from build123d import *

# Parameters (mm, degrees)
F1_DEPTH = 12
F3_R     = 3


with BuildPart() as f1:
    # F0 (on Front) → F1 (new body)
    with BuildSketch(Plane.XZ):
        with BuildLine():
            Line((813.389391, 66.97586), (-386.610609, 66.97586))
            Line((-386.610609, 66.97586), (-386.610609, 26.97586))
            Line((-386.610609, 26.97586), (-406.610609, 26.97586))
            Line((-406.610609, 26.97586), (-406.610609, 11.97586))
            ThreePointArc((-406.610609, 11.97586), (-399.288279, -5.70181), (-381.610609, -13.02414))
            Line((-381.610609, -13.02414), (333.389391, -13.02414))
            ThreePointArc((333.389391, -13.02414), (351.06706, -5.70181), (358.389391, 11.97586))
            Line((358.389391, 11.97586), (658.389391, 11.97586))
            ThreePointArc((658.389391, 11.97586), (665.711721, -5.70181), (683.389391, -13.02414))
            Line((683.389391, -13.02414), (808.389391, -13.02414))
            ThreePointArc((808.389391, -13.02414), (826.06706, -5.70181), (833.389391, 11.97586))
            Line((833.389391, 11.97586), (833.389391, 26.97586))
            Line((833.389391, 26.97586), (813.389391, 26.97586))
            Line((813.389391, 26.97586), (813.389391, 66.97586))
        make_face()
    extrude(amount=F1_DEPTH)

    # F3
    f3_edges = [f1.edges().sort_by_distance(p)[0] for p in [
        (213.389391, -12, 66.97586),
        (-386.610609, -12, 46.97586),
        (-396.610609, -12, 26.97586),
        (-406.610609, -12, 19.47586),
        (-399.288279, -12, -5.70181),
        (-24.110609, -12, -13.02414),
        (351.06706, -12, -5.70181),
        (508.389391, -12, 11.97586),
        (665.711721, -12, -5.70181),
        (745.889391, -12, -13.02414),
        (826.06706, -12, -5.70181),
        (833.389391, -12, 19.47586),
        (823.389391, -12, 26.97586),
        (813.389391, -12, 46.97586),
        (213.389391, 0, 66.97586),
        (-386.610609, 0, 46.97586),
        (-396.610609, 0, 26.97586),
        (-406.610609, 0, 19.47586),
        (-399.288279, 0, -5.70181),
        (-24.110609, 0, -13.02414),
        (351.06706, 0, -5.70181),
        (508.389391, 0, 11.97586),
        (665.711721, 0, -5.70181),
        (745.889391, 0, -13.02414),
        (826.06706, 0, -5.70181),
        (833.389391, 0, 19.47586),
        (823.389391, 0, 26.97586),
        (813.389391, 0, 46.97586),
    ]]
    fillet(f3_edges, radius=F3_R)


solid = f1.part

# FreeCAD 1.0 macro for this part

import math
import FreeCAD as App
import Part
import Sketcher

V = App.Vector


def edges_at(feature, points):
    """Names of the edges that pass closest to the given points."""
    edges = feature.Shape.Edges
    near = lambda p: min(range(len(edges)), key=lambda i: edges[i].distToShape(Part.Vertex(*p))[0])
    return sorted({f"Edge{near(p) + 1}" for p in points})

doc = App.newDocument("Part")
params = doc.addObject("Spreadsheet::Sheet", "Params")
for row, (alias, value) in enumerate([
    ("sketch1_radius", "24.999998 mm"),
    ("sketch1_width", "1200 mm"),
    ("sketch1_width2", "20 mm"),
    ("sketch1_width3", "715 mm"),
    ("sketch1_width4", "300 mm"),
    ("pad1_length", "12 mm"),
    ("fillet_radius", "3 mm"),
], start=1):
    params.set(f"A{row}", alias)
    params.set(f"B{row}", "=" + value)
    params.setAlias(f"B{row}", alias)

body = doc.addObject("PartDesign::Body", "Body")

# Sketch on XZ plane
sketch1 = body.newObject("Sketcher::SketchObject", "Sketch")
sketch1.AttachmentSupport = (doc.getObject("XZ_Plane"), [""])
sketch1.MapMode = "FlatFace"
sketch1.addGeometry(Part.LineSegment(V(813, 67, 0), V(-387, 67, 0)), False)
sketch1.addGeometry(Part.LineSegment(V(-387, 67, 0), V(-387, 27, 0)), False)
sketch1.addGeometry(Part.LineSegment(V(-387, 27, 0), V(-407, 27, 0)), False)
sketch1.addGeometry(Part.LineSegment(V(-407, 27, 0), V(-407, 12, 0)), False)
sketch1.addGeometry(Part.ArcOfCircle(Part.Circle(V(-382, 12, 0), V(0, 0, 1), 25), math.radians(180), math.radians(270)), False)
sketch1.addGeometry(Part.LineSegment(V(-382, -13, 0), V(333, -13, 0)), False)
sketch1.addGeometry(Part.ArcOfCircle(Part.Circle(V(333, 12, 0), V(0, 0, 1), 25), math.radians(-90), math.radians(0)), False)
sketch1.addGeometry(Part.LineSegment(V(358, 12, 0), V(658, 12, 0)), False)
sketch1.addGeometry(Part.ArcOfCircle(Part.Circle(V(683, 12, 0), V(0, 0, 1), 25), math.radians(180), math.radians(270)), False)
sketch1.addGeometry(Part.LineSegment(V(683, -13, 0), V(808, -13, 0)), False)
sketch1.addGeometry(Part.ArcOfCircle(Part.Circle(V(808, 12, 0), V(0, 0, 1), 25), math.radians(-90), math.radians(0)), False)
sketch1.addGeometry(Part.LineSegment(V(833, 12, 0), V(833, 27, 0)), False)
sketch1.addGeometry(Part.LineSegment(V(833, 27, 0), V(813, 27, 0)), False)
sketch1.addGeometry(Part.LineSegment(V(813, 27, 0), V(813, 67, 0)), False)
sketch1.addConstraint(Sketcher.Constraint("Coincident", 0, 2, 1, 1))
sketch1.addConstraint(Sketcher.Constraint("Coincident", 1, 2, 2, 1))
sketch1.addConstraint(Sketcher.Constraint("Coincident", 2, 2, 3, 1))
sketch1.addConstraint(Sketcher.Constraint("Tangent", 3, 2, 4, 1))
sketch1.addConstraint(Sketcher.Constraint("Tangent", 4, 2, 5, 1))
sketch1.addConstraint(Sketcher.Constraint("Tangent", 5, 2, 6, 1))
sketch1.addConstraint(Sketcher.Constraint("Coincident", 6, 2, 7, 1))
sketch1.addConstraint(Sketcher.Constraint("Coincident", 7, 2, 8, 1))
sketch1.addConstraint(Sketcher.Constraint("Tangent", 8, 2, 9, 1))
sketch1.addConstraint(Sketcher.Constraint("Tangent", 9, 2, 10, 1))
sketch1.addConstraint(Sketcher.Constraint("Tangent", 10, 2, 11, 1))
sketch1.addConstraint(Sketcher.Constraint("Coincident", 11, 2, 12, 1))
sketch1.addConstraint(Sketcher.Constraint("Coincident", 12, 2, 13, 1))
sketch1.addConstraint(Sketcher.Constraint("Coincident", 13, 2, 0, 1))
sketch1.addConstraint(Sketcher.Constraint("Horizontal", 0))
sketch1.addConstraint(Sketcher.Constraint("Vertical", 1))
sketch1.addConstraint(Sketcher.Constraint("Horizontal", 2))
sketch1.addConstraint(Sketcher.Constraint("Vertical", 3))
sketch1.addConstraint(Sketcher.Constraint("Horizontal", 5))
sketch1.addConstraint(Sketcher.Constraint("Horizontal", 7))
sketch1.addConstraint(Sketcher.Constraint("Horizontal", 9))
sketch1.addConstraint(Sketcher.Constraint("Vertical", 11))
sketch1.addConstraint(Sketcher.Constraint("Horizontal", 12))
sketch1.addConstraint(Sketcher.Constraint("Vertical", 13))
sketch1.addConstraint(Sketcher.Constraint("Equal", 4, 6))
sketch1.addConstraint(Sketcher.Constraint("Equal", 6, 8))
sketch1.addConstraint(Sketcher.Constraint("Equal", 8, 10))
sketch1.addConstraint(Sketcher.Constraint("Horizontal", 6, 3, 8, 3))
sketch1.addConstraint(Sketcher.Constraint("Horizontal", 3, 2, 6, 2))
sketch1.addConstraint(Sketcher.Constraint("Horizontal", 2, 2, 11, 2))
sketch1.addConstraint(Sketcher.Constraint("Equal", 2, 12))
sketch1.addConstraint(Sketcher.Constraint("Radius", 4, 24.999998))
sketch1.addConstraint(Sketcher.Constraint("DistanceX", 0, 2, 0, 1, 1200.0))
sketch1.addConstraint(Sketcher.Constraint("DistanceX", 2, 2, 2, 1, 20.0))
sketch1.addConstraint(Sketcher.Constraint("DistanceX", 5, 1, 5, 2, 715.0))
sketch1.addConstraint(Sketcher.Constraint("DistanceX", 7, 1, 7, 2, 300.0))
sketch1.addConstraint(Sketcher.Constraint("DistanceY", 1, 2, 1, 1, 40.0))
sketch1.addConstraint(Sketcher.Constraint("DistanceY", 3, 2, 3, 1, 15.0))
sketch1.addConstraint(Sketcher.Constraint("DistanceX", 4, 3, -1, 1, 381.610611))
sketch1.addConstraint(Sketcher.Constraint("DistanceY", -1, 1, 4, 3, 11.975858))
sketch1.setExpression("Constraints[31]", "Params.sketch1_radius")
sketch1.setExpression("Constraints[32]", "Params.sketch1_width")
sketch1.setExpression("Constraints[33]", "Params.sketch1_width2")
sketch1.setExpression("Constraints[34]", "Params.sketch1_width3")
sketch1.setExpression("Constraints[35]", "Params.sketch1_width4")
pad1 = body.newObject("PartDesign::Pad", "Pad")
pad1.Profile = sketch1
pad1.setExpression("Length", "Params.pad1_length")
doc.recompute()

fillet = body.newObject("PartDesign::Fillet", "Fillet")
fillet.Base = (pad1, edges_at(pad1, [
    (213.389, -12, 66.976),
    (-386.611, -12, 46.976),
    (-396.611, -12, 26.976),
    (-406.611, -12, 19.476),
    (-399.288, -12, -5.702),
    (-24.111, -12, -13.024),
    (351.067, -12, -5.702),
    (508.389, -12, 11.976),
    (665.712, -12, -5.702),
    (745.889, -12, -13.024),
    (826.067, -12, -5.702),
    (833.389, -12, 19.476),
    (823.389, -12, 26.976),
    (813.389, -12, 46.976),
    (213.389, 0, 66.976),
    (-386.611, 0, 46.976),
    (-396.611, 0, 26.976),
    (-406.611, 0, 19.476),
    (-399.288, 0, -5.702),
    (-24.111, 0, -13.024),
    (351.067, 0, -5.702),
    (508.389, 0, 11.976),
    (665.712, 0, -5.702),
    (745.889, 0, -13.024),
    (826.067, 0, -5.702),
    (833.389, 0, 19.476),
    (823.389, 0, 26.976),
    (813.389, 0, 46.976),
]))
fillet.setExpression("Radius", "Params.fillet_radius")

doc.recompute()
